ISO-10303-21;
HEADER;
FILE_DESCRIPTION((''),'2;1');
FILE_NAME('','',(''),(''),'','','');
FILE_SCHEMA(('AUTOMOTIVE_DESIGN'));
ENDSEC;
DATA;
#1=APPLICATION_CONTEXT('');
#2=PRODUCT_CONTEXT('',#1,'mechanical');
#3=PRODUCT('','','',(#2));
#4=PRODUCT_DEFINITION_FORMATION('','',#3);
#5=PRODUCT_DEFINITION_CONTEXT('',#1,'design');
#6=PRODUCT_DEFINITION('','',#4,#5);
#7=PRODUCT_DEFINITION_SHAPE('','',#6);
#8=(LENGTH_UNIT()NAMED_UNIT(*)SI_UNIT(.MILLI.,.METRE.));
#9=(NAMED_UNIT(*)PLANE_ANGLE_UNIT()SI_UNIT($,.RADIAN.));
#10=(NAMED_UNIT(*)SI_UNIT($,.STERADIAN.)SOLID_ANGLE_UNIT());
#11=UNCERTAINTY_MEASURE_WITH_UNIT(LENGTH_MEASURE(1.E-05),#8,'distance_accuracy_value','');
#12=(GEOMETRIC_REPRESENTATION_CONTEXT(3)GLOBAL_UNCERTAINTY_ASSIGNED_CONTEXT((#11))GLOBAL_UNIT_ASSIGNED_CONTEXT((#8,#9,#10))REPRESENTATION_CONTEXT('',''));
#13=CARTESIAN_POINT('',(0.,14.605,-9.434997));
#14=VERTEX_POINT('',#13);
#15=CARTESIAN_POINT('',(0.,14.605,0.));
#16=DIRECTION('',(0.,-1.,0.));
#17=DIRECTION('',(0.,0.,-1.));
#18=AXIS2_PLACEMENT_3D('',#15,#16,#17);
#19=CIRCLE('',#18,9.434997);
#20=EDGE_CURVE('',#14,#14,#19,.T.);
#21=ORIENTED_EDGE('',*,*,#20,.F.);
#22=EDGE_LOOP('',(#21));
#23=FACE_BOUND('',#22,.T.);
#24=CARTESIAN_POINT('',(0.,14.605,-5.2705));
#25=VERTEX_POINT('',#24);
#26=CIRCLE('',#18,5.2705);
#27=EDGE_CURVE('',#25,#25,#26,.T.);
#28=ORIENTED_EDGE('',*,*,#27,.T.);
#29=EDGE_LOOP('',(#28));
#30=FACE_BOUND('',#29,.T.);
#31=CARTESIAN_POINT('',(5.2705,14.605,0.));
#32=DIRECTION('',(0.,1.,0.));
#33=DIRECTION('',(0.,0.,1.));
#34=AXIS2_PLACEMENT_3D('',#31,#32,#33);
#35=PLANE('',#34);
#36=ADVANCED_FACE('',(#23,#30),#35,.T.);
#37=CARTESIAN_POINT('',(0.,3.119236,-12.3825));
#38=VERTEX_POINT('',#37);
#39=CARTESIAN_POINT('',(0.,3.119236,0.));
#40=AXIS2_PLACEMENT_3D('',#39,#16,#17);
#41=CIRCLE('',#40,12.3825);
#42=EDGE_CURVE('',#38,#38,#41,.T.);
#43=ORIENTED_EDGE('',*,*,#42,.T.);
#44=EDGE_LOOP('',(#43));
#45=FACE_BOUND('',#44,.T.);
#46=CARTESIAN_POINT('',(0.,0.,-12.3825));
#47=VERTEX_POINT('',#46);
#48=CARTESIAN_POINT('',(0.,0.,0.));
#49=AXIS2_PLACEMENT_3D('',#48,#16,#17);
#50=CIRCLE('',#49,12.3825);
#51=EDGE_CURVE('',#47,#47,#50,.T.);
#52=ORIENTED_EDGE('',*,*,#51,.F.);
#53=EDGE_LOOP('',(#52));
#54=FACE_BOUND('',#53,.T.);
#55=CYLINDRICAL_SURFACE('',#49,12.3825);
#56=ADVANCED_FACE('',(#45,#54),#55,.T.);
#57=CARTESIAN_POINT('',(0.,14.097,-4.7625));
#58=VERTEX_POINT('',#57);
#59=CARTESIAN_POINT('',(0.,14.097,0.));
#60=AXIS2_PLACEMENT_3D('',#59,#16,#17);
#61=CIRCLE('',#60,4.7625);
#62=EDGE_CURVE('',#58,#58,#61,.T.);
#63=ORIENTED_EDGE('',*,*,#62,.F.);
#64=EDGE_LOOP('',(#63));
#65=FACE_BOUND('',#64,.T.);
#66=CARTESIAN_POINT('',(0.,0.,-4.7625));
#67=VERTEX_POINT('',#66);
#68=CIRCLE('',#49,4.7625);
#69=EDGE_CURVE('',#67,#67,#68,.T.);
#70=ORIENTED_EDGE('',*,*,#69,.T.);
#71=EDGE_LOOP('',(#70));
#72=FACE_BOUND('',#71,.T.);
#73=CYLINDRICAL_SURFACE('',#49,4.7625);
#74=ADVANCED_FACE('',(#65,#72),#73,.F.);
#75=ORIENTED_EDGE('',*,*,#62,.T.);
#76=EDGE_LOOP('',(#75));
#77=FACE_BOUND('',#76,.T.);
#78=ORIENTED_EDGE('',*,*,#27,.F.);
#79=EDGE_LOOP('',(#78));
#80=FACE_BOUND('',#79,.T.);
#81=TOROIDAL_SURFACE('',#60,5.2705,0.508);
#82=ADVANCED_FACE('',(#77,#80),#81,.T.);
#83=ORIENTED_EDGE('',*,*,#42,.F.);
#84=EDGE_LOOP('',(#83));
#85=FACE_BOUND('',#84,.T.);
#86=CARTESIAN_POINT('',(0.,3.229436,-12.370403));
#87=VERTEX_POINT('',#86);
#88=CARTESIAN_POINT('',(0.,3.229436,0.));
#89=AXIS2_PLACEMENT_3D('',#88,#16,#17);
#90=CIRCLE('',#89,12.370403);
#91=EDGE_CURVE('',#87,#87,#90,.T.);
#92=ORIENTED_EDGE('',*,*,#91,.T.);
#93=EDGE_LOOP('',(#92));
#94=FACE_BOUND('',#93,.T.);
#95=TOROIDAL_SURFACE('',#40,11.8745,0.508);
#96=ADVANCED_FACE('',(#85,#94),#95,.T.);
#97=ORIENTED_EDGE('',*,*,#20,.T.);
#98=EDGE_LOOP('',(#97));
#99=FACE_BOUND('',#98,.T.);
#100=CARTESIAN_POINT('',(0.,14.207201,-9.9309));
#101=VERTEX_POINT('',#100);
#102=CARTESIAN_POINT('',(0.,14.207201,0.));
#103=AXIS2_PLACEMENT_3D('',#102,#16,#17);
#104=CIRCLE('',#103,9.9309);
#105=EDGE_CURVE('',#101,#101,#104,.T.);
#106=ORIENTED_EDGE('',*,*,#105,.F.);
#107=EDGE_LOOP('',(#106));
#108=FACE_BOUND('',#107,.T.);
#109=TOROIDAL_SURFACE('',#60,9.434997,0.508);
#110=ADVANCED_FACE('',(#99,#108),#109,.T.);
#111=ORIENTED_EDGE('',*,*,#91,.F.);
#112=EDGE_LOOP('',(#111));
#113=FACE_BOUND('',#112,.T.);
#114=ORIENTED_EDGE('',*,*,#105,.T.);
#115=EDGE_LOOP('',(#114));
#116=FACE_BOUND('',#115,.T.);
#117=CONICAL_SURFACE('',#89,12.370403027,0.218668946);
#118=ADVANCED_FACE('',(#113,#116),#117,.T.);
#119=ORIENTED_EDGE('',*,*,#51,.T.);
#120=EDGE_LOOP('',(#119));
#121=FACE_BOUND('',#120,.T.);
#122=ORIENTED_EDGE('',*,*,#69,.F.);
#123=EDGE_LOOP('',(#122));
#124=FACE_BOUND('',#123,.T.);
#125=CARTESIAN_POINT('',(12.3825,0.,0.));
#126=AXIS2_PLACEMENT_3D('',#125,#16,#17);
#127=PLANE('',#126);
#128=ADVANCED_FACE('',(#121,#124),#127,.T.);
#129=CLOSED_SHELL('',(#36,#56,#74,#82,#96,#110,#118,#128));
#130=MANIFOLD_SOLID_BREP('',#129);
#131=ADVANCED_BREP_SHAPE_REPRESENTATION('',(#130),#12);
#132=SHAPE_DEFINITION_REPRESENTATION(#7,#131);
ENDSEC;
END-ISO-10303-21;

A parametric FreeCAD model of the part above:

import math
import FreeCAD as App
import Part
import Sketcher

V = App.Vector
Q = App.Units.Quantity

doc = App.newDocument("Part")
body = doc.addObject("PartDesign::Body", "Body")

sketch1 = body.newObject("Sketcher::SketchObject", "Sketch")
sketch1.AttachmentSupport = (doc.getObject("XY_Plane"), [""])
sketch1.MapMode = "FlatFace"
sketch1.addGeometry([
    Part.LineSegment(V(4.7625, 14.097, 0), V(4.7625, 0, 0)),
    Part.LineSegment(V(4.7625, 0, 0), V(12.3825, 0, 0)),
    Part.LineSegment(V(12.3825, 0, 0), V(12.3825, 3.119236, 0)),
    Part.ArcOfCircle(Part.Circle(V(11.8745, 3.119236, 0), V(0, 0, 1), 0.508), math.radians(-0.000001), math.radians(12.528808)),
    Part.LineSegment(V(12.370403, 3.229436, 0), V(9.9309, 14.207201, 0)),
    Part.ArcOfCircle(Part.Circle(V(9.434997, 14.097, 0), V(0, 0, 1), 0.508), math.radians(12.528808), math.radians(90)),
    Part.LineSegment(V(9.434997, 14.605, 0), V(5.2705, 14.605, 0)),
    Part.ArcOfCircle(Part.Circle(V(5.2705, 14.097, 0), V(0, 0, 1), 0.508), math.radians(90), math.radians(180)),
], False)
sketch1.addConstraint([
    Sketcher.Constraint("Coincident", 0, 2, 1, 1),
    Sketcher.Constraint("Coincident", 1, 2, 2, 1),
    Sketcher.Constraint("Coincident", 2, 2, 3, 1),
    Sketcher.Constraint("Coincident", 3, 2, 4, 1),
    Sketcher.Constraint("Coincident", 4, 2, 5, 1),
    Sketcher.Constraint("Coincident", 5, 2, 6, 1),
    Sketcher.Constraint("Coincident", 6, 2, 7, 1),
    Sketcher.Constraint("Coincident", 7, 2, 0, 1),
    Sketcher.Constraint("Vertical", 0),
    Sketcher.Constraint("Horizontal", 1),
    Sketcher.Constraint("Vertical", 2),
    Sketcher.Constraint("Horizontal", 6),
    Sketcher.Constraint("PointOnObject", 0, 2, -1),
    Sketcher.Constraint("Radius", 3, Q("0.02 in")),
    Sketcher.Constraint("Radius", 5, Q("0.02 in")),
    Sketcher.Constraint("Radius", 7, Q("0.02 in")),
    Sketcher.Constraint("DistanceX", 1, 1, 1, 2, Q("0.3 in")),
    Sketcher.Constraint("DistanceY", 0, 2, 0, 1, Q("0.555 in")),
    Sketcher.Constraint("DistanceX", 6, 2, 3, 3, Q("0.26 in")),
    Sketcher.Constraint("DistanceY", 7, 2, 6, 2, Q("0.02 in")),
    Sketcher.Constraint("DistanceX", -1, 1, 0, 2, Q("0.1875 in")),
    Sketcher.Constraint("DistanceX", -1, 1, 4, 2, 9.9309),
    Sketcher.Constraint("DistanceY", -1, 1, 4, 2, 14.207201),
    Sketcher.Constraint("DistanceY", 2, 2, 3, 2, 0.110201),
    Sketcher.Constraint("DistanceY", 3, 3, 3, 2, 0.110201),
    Sketcher.Constraint("DistanceX", 6, 2, 6, 1, 4.164497),
    Sketcher.Constraint("DistanceY", 2, 1, 2, 2, 3.119236),
])
revolution = body.newObject("PartDesign::Revolution", "Revolution")
revolution.Profile = sketch1
revolution.ReferenceAxis = (sketch1, ["V_Axis"])
revolution.Angle = 360

doc.recompute()
